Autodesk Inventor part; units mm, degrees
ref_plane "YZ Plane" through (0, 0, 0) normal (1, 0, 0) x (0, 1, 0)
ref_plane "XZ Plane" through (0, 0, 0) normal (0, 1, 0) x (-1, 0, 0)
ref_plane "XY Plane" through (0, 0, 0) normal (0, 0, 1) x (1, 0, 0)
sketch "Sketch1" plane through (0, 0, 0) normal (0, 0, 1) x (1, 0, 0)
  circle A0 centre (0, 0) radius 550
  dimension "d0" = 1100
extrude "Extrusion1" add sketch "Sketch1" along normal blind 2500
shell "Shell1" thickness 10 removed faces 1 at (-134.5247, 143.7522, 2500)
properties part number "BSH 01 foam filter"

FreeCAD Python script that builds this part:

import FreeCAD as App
import Part
import Sketcher
from FreeCAD import Vector
Q = App.Units.Quantity


def faces_at(feature, points):
    """Names of the faces that lie closest to the given points."""
    faces = feature.Shape.Faces
    near = lambda p: min(range(len(faces)), key=lambda i: faces[i].distToShape(Part.Vertex(*p))[0])
    return sorted({f"Face{near(p) + 1}" for p in points})

doc = App.newDocument("Part")
params = doc.addObject("Spreadsheet::Sheet", "Params")
for row, (alias, value) in enumerate([
    ("sketch1_diameter", "1100 mm"),
    ("pad1_length", "2500 mm"),
    ("thickness_wall", "10 mm"),
], start=1):
    params.set(f"A{row}", alias)
    params.set(f"B{row}", "=" + value)
    params.setAlias(f"B{row}", alias)

body = doc.addObject("PartDesign::Body", "Body")

sketch1 = body.newObject("Sketcher::SketchObject", "Sketch")
sketch1.AttachmentSupport = (doc.getObject("XY_Plane"), [""])
sketch1.MapMode = "FlatFace"
sketch1.addGeometry(Part.Circle(Vector(0, 0, 0), Vector(0, 0, 1), 550), False)
sketch1.addConstraint(Sketcher.Constraint("Coincident", 0, 3, -1, 1))
sketch1.addConstraint(Sketcher.Constraint("Diameter", 0, Q("1100 mm")))
sketch1.setExpression("Constraints[1]", "Params.sketch1_diameter")
pad1 = body.newObject("PartDesign::Pad", "Pad")
pad1.Profile = sketch1
pad1.setExpression("Length", "Params.pad1_length")
doc.recompute()

thickness = body.newObject("PartDesign::Thickness", "Thickness")
thickness.Base = (pad1, faces_at(pad1, [(-134.525, 143.752, 2500)]))
thickness.setExpression("Value", "Params.thickness_wall")
thickness.Reversed = True
thickness.Join = "Intersection"

doc.recompute()
